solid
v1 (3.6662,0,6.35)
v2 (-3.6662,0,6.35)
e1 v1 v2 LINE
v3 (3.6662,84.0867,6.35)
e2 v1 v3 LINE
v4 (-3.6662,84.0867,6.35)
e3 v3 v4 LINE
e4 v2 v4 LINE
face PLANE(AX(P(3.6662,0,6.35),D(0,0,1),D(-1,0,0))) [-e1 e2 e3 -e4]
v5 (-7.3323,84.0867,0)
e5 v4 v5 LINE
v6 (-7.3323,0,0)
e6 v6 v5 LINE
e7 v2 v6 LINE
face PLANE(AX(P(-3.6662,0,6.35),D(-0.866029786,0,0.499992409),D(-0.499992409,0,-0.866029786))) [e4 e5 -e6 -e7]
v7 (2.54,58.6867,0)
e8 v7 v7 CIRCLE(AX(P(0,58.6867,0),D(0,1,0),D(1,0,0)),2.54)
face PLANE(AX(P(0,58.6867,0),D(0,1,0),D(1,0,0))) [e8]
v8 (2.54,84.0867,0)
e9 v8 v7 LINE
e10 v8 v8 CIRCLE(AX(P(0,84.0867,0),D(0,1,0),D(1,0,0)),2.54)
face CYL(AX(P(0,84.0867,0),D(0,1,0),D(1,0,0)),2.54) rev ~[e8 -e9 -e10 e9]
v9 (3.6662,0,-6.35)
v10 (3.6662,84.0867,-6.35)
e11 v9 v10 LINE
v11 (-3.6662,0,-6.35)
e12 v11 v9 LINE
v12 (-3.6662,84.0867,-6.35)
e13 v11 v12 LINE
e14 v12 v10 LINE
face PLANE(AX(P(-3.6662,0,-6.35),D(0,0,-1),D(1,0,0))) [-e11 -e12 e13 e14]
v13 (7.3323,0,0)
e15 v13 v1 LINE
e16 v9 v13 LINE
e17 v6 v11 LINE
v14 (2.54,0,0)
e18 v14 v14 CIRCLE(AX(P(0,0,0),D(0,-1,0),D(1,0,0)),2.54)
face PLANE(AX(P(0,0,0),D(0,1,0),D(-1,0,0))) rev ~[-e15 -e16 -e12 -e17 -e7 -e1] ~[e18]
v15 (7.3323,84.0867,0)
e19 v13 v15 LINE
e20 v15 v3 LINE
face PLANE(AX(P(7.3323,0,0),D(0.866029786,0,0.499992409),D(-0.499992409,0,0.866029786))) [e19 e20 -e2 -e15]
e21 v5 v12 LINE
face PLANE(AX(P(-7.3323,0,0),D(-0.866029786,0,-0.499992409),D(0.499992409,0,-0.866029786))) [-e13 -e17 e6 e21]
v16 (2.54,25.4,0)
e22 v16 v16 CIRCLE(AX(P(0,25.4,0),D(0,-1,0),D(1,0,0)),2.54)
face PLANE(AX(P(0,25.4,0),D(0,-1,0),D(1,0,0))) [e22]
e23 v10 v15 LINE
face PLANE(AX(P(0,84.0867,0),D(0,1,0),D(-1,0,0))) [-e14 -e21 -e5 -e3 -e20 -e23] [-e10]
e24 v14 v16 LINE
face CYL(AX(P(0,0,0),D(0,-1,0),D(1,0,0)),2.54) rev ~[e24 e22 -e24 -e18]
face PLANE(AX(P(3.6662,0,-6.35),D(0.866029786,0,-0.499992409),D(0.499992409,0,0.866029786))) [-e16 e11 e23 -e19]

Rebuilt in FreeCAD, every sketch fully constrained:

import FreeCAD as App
import Part
import Sketcher
from FreeCAD import Vector
Q = App.Units.Quantity


def add_polygon(sketch, points):
    """Adds a closed chain of lines whose ends are joined by coincident constraints."""
    first, n = sketch.GeometryCount, len(points)
    for a, b in zip(points, points[1:] + points[:1]):
        sketch.addGeometry(Part.LineSegment(App.Vector(*a, 0), App.Vector(*b, 0)), False)
    for i in range(n):
        sketch.addConstraint(Sketcher.Constraint("Coincident", first + i, 2, first + (i + 1) % n, 1))

doc = App.newDocument("Part")
body = doc.addObject("PartDesign::Body", "Body")

# Sketch on XZ plane
sketch1 = body.newObject("Sketcher::SketchObject", "Sketch")
sketch1.AttachmentSupport = (doc.getObject("XZ_Plane"), [""])
sketch1.MapMode = "FlatFace"
add_polygon(sketch1, [(-3.6662, 6.35), (3.6662, 6.35), (7.3323, 0), (3.6662, -6.35), (-3.6662, -6.35), (-7.3323, 0)])  # lines 0-5
sketch1.addConstraint([
    Sketcher.Constraint("Horizontal", 0),
    Sketcher.Constraint("Horizontal", 3),
    Sketcher.Constraint("Symmetric", 0, 2, 3, 2, -1, 1),
    Sketcher.Constraint("Symmetric", 1, 2, 4, 2, -1, 1),
    Sketcher.Constraint("PointOnObject", 1, 2, -1),
    Sketcher.Constraint("Parallel", 2, 5),
    Sketcher.Constraint("Vertical", 0, 2, 2, 2),
    Sketcher.Constraint("DistanceY", 2, 2, 0, 2, Q("0.5 in")),
    Sketcher.Constraint("Angle", 1, Q("-60.0005 deg")),
    Sketcher.Constraint("DistanceX", 3, 2, 1, 2, Q("0.433 in")),
])
pad1 = body.newObject("PartDesign::Pad", "Pad")
pad1.Profile = sketch1
pad1.Length = Q("3.3105 in")
pad1.Reversed = True

# Sketch on XZ plane
sketch2 = body.newObject("Sketcher::SketchObject", "Sketch001")
sketch2.AttachmentSupport = (doc.getObject("XZ_Plane"), [""])
sketch2.MapMode = "FlatFace"
sketch2.AttachmentOffset = App.Placement(Vector(0, 0, -3.3105 * 25.4), App.Rotation())
sketch2.addGeometry(Part.Circle(Vector(0, 0, 0), Vector(0, 0, 1), 2.54), False)
sketch2.addConstraint([
    Sketcher.Constraint("Coincident", 0, 3, -1, 1),
    Sketcher.Constraint("Diameter", 0, Q("0.2 in")),
])
pocket1 = body.newObject("PartDesign::Pocket", "Pocket")
pocket1.Profile = sketch2
pocket1.Length = Q("1 in")
pocket1.Reversed = True

# Sketch on XZ plane
sketch3 = body.newObject("Sketcher::SketchObject", "Sketch002")
sketch3.AttachmentSupport = (doc.getObject("XZ_Plane"), [""])
sketch3.MapMode = "FlatFace"
sketch3.addGeometry(Part.Circle(Vector(0, 0, 0), Vector(0, 0, 1), 2.54), False)
sketch3.addConstraint([
    Sketcher.Constraint("Coincident", 0, 3, -1, 1),
    Sketcher.Constraint("Diameter", 0, Q("0.2 in")),
])
pocket2 = body.newObject("PartDesign::Pocket", "Pocket001")
pocket2.Profile = sketch3
pocket2.Length = Q("1 in")

doc.recompute()
